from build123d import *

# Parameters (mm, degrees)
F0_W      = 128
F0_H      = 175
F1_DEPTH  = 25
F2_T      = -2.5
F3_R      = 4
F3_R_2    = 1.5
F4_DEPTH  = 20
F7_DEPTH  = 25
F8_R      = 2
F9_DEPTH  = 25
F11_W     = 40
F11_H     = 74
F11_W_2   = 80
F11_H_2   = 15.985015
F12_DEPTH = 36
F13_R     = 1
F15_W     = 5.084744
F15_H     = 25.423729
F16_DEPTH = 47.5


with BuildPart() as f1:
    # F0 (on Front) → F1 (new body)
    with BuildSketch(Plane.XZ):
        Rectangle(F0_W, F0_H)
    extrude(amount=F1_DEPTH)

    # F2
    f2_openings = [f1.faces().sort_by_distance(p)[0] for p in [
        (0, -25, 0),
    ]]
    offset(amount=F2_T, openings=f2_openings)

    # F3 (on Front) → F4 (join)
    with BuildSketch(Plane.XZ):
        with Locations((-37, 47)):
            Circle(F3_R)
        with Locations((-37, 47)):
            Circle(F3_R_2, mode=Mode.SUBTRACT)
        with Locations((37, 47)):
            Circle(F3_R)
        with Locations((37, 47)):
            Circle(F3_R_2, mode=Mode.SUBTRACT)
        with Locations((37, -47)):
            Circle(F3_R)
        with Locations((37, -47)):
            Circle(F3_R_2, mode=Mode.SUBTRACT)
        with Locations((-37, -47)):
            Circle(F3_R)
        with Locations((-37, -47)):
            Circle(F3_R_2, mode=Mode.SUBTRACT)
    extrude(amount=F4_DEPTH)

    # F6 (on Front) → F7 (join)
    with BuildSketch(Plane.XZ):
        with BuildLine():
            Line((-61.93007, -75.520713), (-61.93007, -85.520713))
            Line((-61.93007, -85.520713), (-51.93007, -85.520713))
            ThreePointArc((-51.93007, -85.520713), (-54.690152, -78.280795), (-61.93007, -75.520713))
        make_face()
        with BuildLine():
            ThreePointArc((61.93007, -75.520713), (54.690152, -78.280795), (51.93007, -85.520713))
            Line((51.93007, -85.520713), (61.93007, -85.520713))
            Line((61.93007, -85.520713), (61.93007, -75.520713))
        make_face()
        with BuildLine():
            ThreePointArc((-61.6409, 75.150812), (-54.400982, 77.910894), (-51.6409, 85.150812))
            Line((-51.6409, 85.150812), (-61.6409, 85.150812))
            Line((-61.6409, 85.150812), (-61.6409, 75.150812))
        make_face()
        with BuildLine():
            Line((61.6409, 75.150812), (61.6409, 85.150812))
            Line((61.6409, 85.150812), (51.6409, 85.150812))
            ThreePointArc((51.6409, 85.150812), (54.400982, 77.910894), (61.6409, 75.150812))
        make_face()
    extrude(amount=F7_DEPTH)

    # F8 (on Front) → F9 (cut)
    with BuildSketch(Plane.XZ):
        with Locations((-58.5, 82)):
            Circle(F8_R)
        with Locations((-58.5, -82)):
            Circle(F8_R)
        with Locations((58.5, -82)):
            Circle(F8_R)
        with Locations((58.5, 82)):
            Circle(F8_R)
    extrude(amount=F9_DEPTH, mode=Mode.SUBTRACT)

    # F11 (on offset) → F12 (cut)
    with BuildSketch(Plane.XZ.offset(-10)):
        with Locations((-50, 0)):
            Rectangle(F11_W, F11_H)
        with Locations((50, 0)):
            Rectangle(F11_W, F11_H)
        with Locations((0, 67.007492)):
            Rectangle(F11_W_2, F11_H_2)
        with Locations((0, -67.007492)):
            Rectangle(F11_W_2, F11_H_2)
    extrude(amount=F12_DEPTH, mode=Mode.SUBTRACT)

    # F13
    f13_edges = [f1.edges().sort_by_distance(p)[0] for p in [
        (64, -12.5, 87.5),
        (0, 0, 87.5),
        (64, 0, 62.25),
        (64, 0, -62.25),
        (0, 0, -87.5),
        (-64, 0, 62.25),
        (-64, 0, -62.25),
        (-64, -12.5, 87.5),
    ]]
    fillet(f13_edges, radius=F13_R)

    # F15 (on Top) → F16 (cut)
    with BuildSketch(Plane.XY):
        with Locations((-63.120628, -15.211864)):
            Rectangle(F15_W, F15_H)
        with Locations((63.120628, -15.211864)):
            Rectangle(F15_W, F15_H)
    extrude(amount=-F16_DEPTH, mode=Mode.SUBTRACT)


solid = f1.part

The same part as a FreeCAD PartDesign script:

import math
import FreeCAD as App
import Part
import Sketcher
from FreeCAD import Vector
Q = App.Units.Quantity


def edges_at(feature, points):
    """Names of the edges that pass closest to the given points."""
    edges = feature.Shape.Edges
    near = lambda p: min(range(len(edges)), key=lambda i: edges[i].distToShape(Part.Vertex(*p))[0])
    return sorted({f"Edge{near(p) + 1}" for p in points})


def faces_at(feature, points):
    """Names of the faces that lie closest to the given points."""
    faces = feature.Shape.Faces
    near = lambda p: min(range(len(faces)), key=lambda i: faces[i].distToShape(Part.Vertex(*p))[0])
    return sorted({f"Face{near(p) + 1}" for p in points})


def add_polygon(sketch, points):
    """Adds a closed chain of lines whose ends are joined by coincident constraints."""
    first, n = sketch.GeometryCount, len(points)
    for a, b in zip(points, points[1:] + points[:1]):
        sketch.addGeometry(Part.LineSegment(App.Vector(*a, 0), App.Vector(*b, 0)), False)
    for i in range(n):
        sketch.addConstraint(Sketcher.Constraint("Coincident", first + i, 2, first + (i + 1) % n, 1))

doc = App.newDocument("Part")
params = doc.addObject("Spreadsheet::Sheet", "Params")
for row, (alias, value) in enumerate([
    ("sketch1_width", "128 mm"),
    ("sketch1_height", "175 mm"),
    ("pad1_length", "25 mm"),
    ("thickness_wall", "2.5 mm"),
    ("sketch2_diameter", "8 mm"),
    ("sketch2_diameter2", "3 mm"),
    ("pad2_length", "20 mm"),
    ("sketch3_width", "10 mm"),
    ("pad3_length", "25 mm"),
    ("sketch4_diameter", "4 mm"),
    ("pocket1_length", "25 mm"),
    ("sketch5_width", "40 mm"),
    ("sketch5_width2", "80 mm"),
    ("sketch5_height", "74 mm"),
    ("pocket2_length", "36 mm"),
    ("fillet_radius", "1 mm"),
    ("pocket3_length", "47.5 mm"),
], start=1):
    params.set(f"A{row}", alias)
    params.set(f"B{row}", "=" + value)
    params.setAlias(f"B{row}", alias)

body = doc.addObject("PartDesign::Body", "Body")

sketch1 = body.newObject("Sketcher::SketchObject", "Sketch")
sketch1.AttachmentSupport = (doc.getObject("XZ_Plane"), [""])
sketch1.MapMode = "FlatFace"
add_polygon(sketch1, [(-64, 88), (-64, -88), (64, -88), (64, 88)])
sketch1.addConstraint(Sketcher.Constraint("Vertical", 0))
sketch1.addConstraint(Sketcher.Constraint("Horizontal", 1))
sketch1.addConstraint(Sketcher.Constraint("Vertical", 2))
sketch1.addConstraint(Sketcher.Constraint("Horizontal", 3))
sketch1.addConstraint(Sketcher.Constraint("Symmetric", 0, 2, 2, 2, -1, 1))
sketch1.addConstraint(Sketcher.Constraint("DistanceX", 1, 1, 1, 2, Q("128 mm")))
sketch1.addConstraint(Sketcher.Constraint("DistanceY", 0, 2, 0, 1, Q("175 mm")))
sketch1.setExpression("Constraints[9]", "Params.sketch1_width")
sketch1.setExpression("Constraints[10]", "Params.sketch1_height")
pad1 = body.newObject("PartDesign::Pad", "Pad")
pad1.Profile = sketch1
pad1.setExpression("Length", "Params.pad1_length")
doc.recompute()

thickness = body.newObject("PartDesign::Thickness", "Thickness")
thickness.Base = (pad1, faces_at(pad1, [(0, -25, 0)]))
thickness.setExpression("Value", "Params.thickness_wall")
thickness.Reversed = True
thickness.Join = "Arc"

sketch2 = body.newObject("Sketcher::SketchObject", "Sketch001")
sketch2.AttachmentSupport = (doc.getObject("XZ_Plane"), [""])
sketch2.MapMode = "FlatFace"
sketch2.addGeometry(Part.Circle(Vector(-37, 47, 0), Vector(0, 0, 1), 4), False)
sketch2.addGeometry(Part.Circle(Vector(-37, 47, 0), Vector(0, 0, 1), 1.5), False)
sketch2.addGeometry(Part.Circle(Vector(37, 47, 0), Vector(0, 0, 1), 4), False)
sketch2.addGeometry(Part.Circle(Vector(37, 47, 0), Vector(0, 0, 1), 1.5), False)
sketch2.addGeometry(Part.Circle(Vector(37, -47, 0), Vector(0, 0, 1), 4), False)
sketch2.addGeometry(Part.Circle(Vector(37, -47, 0), Vector(0, 0, 1), 1.5), False)
sketch2.addGeometry(Part.Circle(Vector(-37, -47, 0), Vector(0, 0, 1), 4), False)
sketch2.addGeometry(Part.Circle(Vector(-37, -47, 0), Vector(0, 0, 1), 1.5), False)
sketch2.addConstraint(Sketcher.Constraint("Coincident", 1, 3, 0, 3))
sketch2.addConstraint(Sketcher.Constraint("Coincident", 3, 3, 2, 3))
sketch2.addConstraint(Sketcher.Constraint("Coincident", 5, 3, 4, 3))
sketch2.addConstraint(Sketcher.Constraint("Coincident", 7, 3, 6, 3))
sketch2.addConstraint(Sketcher.Constraint("Equal", 0, 2))
sketch2.addConstraint(Sketcher.Constraint("Equal", 1, 3))
sketch2.addConstraint(Sketcher.Constraint("Equal", 2, 4))
sketch2.addConstraint(Sketcher.Constraint("Equal", 3, 5))
sketch2.addConstraint(Sketcher.Constraint("Equal", 4, 6))
sketch2.addConstraint(Sketcher.Constraint("Equal", 5, 7))
sketch2.addConstraint(Sketcher.Constraint("Symmetric", 0, 3, 4, 3, -1, 1))
sketch2.addConstraint(Sketcher.Constraint("Symmetric", 2, 3, 6, 3, -1, 1))
sketch2.addConstraint(Sketcher.Constraint("Symmetric", 0, 3, 2, 3, -2))
sketch2.addConstraint(Sketcher.Constraint("Diameter", 0, Q("8 mm")))
sketch2.addConstraint(Sketcher.Constraint("Diameter", 1, Q("3 mm")))
sketch2.addConstraint(Sketcher.Constraint("DistanceX", 0, 3, -1, 1, Q("37 mm")))
sketch2.addConstraint(Sketcher.Constraint("DistanceY", -1, 1, 0, 3, Q("47 mm")))
sketch2.setExpression("Constraints[13]", "Params.sketch2_diameter")
sketch2.setExpression("Constraints[14]", "Params.sketch2_diameter2")
pad2 = body.newObject("PartDesign::Pad", "Pad001")
pad2.Profile = sketch2
pad2.setExpression("Length", "Params.pad2_length")

sketch3 = body.newObject("Sketcher::SketchObject", "Sketch002")
sketch3.AttachmentSupport = (doc.getObject("XZ_Plane"), [""])
sketch3.MapMode = "FlatFace"
sketch3.addGeometry(Part.LineSegment(Vector(-62, -76, 0), Vector(-62, -86, 0)), False)
sketch3.addGeometry(Part.LineSegment(Vector(-62, -86, 0), Vector(-52, -86, 0)), False)
sketch3.addGeometry(Part.ArcOfCircle(Part.Circle(Vector(-61, -85, 0), Vector(0, 0, 1), 9), math.radians(-3), math.radians(93)), False)
sketch3.addGeometry(Part.ArcOfCircle(Part.Circle(Vector(61, -85, 0), Vector(0, 0, 1), 9), math.radians(87), math.radians(183)), False)
sketch3.addGeometry(Part.LineSegment(Vector(52, -86, 0), Vector(62, -86, 0)), False)
sketch3.addGeometry(Part.LineSegment(Vector(62, -86, 0), Vector(62, -76, 0)), False)
sketch3.addGeometry(Part.ArcOfCircle(Part.Circle(Vector(-61, 85, 0), Vector(0, 0, 1), 9), math.radians(-93), math.radians(3)), False)
sketch3.addGeometry(Part.LineSegment(Vector(-52, 85, 0), Vector(-62, 85, 0)), False)
sketch3.addGeometry(Part.LineSegment(Vector(-62, 85, 0), Vector(-62, 75, 0)), False)
sketch3.addGeometry(Part.LineSegment(Vector(62, 75, 0), Vector(62, 85, 0)), False)
sketch3.addGeometry(Part.LineSegment(Vector(62, 85, 0), Vector(52, 85, 0)), False)
sketch3.addGeometry(Part.ArcOfCircle(Part.Circle(Vector(61, 85, 0), Vector(0, 0, 1), 9), math.radians(177), math.radians(273)), False)
sketch3.addConstraint(Sketcher.Constraint("Coincident", 0, 2, 1, 1))
sketch3.addConstraint(Sketcher.Constraint("Coincident", 1, 2, 2, 1))
sketch3.addConstraint(Sketcher.Constraint("Coincident", 2, 2, 0, 1))
sketch3.addConstraint(Sketcher.Constraint("Coincident", 3, 2, 4, 1))
sketch3.addConstraint(Sketcher.Constraint("Coincident", 4, 2, 5, 1))
sketch3.addConstraint(Sketcher.Constraint("Coincident", 5, 2, 3, 1))
sketch3.addConstraint(Sketcher.Constraint("Coincident", 6, 2, 7, 1))
sketch3.addConstraint(Sketcher.Constraint("Coincident", 7, 2, 8, 1))
sketch3.addConstraint(Sketcher.Constraint("Coincident", 8, 2, 6, 1))
sketch3.addConstraint(Sketcher.Constraint("Coincident", 9, 2, 10, 1))
sketch3.addConstraint(Sketcher.Constraint("Coincident", 10, 2, 11, 1))
sketch3.addConstraint(Sketcher.Constraint("Coincident", 11, 2, 9, 1))
sketch3.addConstraint(Sketcher.Constraint("Vertical", 0))
sketch3.addConstraint(Sketcher.Constraint("Horizontal", 1))
sketch3.addConstraint(Sketcher.Constraint("Horizontal", 4))
sketch3.addConstraint(Sketcher.Constraint("Vertical", 5))
sketch3.addConstraint(Sketcher.Constraint("Horizontal", 7))
sketch3.addConstraint(Sketcher.Constraint("Vertical", 8))
sketch3.addConstraint(Sketcher.Constraint("Vertical", 9))
sketch3.addConstraint(Sketcher.Constraint("Horizontal", 10))
sketch3.addConstraint(Sketcher.Constraint("Equal", 2, 3))
sketch3.addConstraint(Sketcher.Constraint("Equal", 3, 6))
sketch3.addConstraint(Sketcher.Constraint("Equal", 6, 11))
sketch3.addConstraint(Sketcher.Constraint("Symmetric", 2, 3, 3, 3, -2))
sketch3.addConstraint(Sketcher.Constraint("Symmetric", 6, 3, 11, 3, -2))
sketch3.addConstraint(Sketcher.Constraint("Symmetric", 0, 2, 4, 2, -2))
sketch3.addConstraint(Sketcher.Constraint("Symmetric", 7, 2, 9, 2, -2))
sketch3.addConstraint(Sketcher.Constraint("Equal", 4, 7))
sketch3.addConstraint(Sketcher.Constraint("Equal", 10, 0))
sketch3.addConstraint(Sketcher.Constraint("Equal", 5, 8))
sketch3.addConstraint(Sketcher.Constraint("DistanceX", 1, 1, 1, 2, Q("10 mm")))
sketch3.addConstraint(Sketcher.Constraint("Radius", 2, Q("9.475967 mm")))
sketch3.addConstraint(Sketcher.Constraint("DistanceX", 6, 2, -1, 1, Q("51.6409 mm")))
sketch3.addConstraint(Sketcher.Constraint("DistanceX", 0, 2, -1, 1, Q("61.93007 mm")))
sketch3.addConstraint(Sketcher.Constraint("DistanceY", -1, 1, 7, 2, Q("85.150812 mm")))
sketch3.addConstraint(Sketcher.Constraint("DistanceY", 2, 3, 6, 3, Q("169.59273 mm")))
sketch3.setExpression("Constraints[30]", "Params.sketch3_width")
pad3 = body.newObject("PartDesign::Pad", "Pad002")
pad3.Profile = sketch3
pad3.setExpression("Length", "Params.pad3_length")

sketch4 = body.newObject("Sketcher::SketchObject", "Sketch003")
sketch4.AttachmentSupport = (doc.getObject("XZ_Plane"), [""])
sketch4.MapMode = "FlatFace"
sketch4.addGeometry(Part.Circle(Vector(-58.5, 82, 0), Vector(0, 0, 1), 2), False)
sketch4.addGeometry(Part.Circle(Vector(-58.5, -82, 0), Vector(0, 0, 1), 2), False)
sketch4.addGeometry(Part.Circle(Vector(58.5, -82, 0), Vector(0, 0, 1), 2), False)
sketch4.addGeometry(Part.Circle(Vector(58.5, 82, 0), Vector(0, 0, 1), 2), False)
sketch4.addConstraint(Sketcher.Constraint("Equal", 0, 1))
sketch4.addConstraint(Sketcher.Constraint("Equal", 1, 2))
sketch4.addConstraint(Sketcher.Constraint("Equal", 2, 3))
sketch4.addConstraint(Sketcher.Constraint("Symmetric", 0, 3, 2, 3, -1, 1))
sketch4.addConstraint(Sketcher.Constraint("Symmetric", 1, 3, 3, 3, -1, 1))
sketch4.addConstraint(Sketcher.Constraint("Symmetric", 1, 3, 2, 3, -2))
sketch4.addConstraint(Sketcher.Constraint("Diameter", 0, Q("4 mm")))
sketch4.addConstraint(Sketcher.Constraint("DistanceY", -1, 1, 0, 3, Q("82 mm")))
sketch4.addConstraint(Sketcher.Constraint("DistanceX", 1, 3, 2, 3, Q("117 mm")))
sketch4.setExpression("Constraints[6]", "Params.sketch4_diameter")
pocket1 = body.newObject("PartDesign::Pocket", "Pocket")
pocket1.Profile = sketch4
pocket1.setExpression("Length", "Params.pocket1_length")
pocket1.Reversed = True

sketch5 = body.newObject("Sketcher::SketchObject", "Sketch004")
sketch5.AttachmentSupport = (doc.getObject("XZ_Plane"), [""])
sketch5.MapMode = "FlatFace"
sketch5.AttachmentOffset = App.Placement(Vector(0, 0, -10), App.Rotation())
add_polygon(sketch5, [(-70, 37), (-70, -37), (-30, -37), (-30, 37)])
add_polygon(sketch5, [(30, 37), (30, -37), (70, -37), (70, 37)])
add_polygon(sketch5, [(-40, 75), (-40, 59), (40, 59), (40, 75)])
add_polygon(sketch5, [(-40, -59), (-40, -75), (40, -75), (40, -59)])
sketch5.addConstraint(Sketcher.Constraint("Vertical", 0))
sketch5.addConstraint(Sketcher.Constraint("Horizontal", 1))
sketch5.addConstraint(Sketcher.Constraint("Vertical", 2))
sketch5.addConstraint(Sketcher.Constraint("Horizontal", 3))
sketch5.addConstraint(Sketcher.Constraint("Vertical", 4))
sketch5.addConstraint(Sketcher.Constraint("Horizontal", 5))
sketch5.addConstraint(Sketcher.Constraint("Vertical", 6))
sketch5.addConstraint(Sketcher.Constraint("Horizontal", 7))
sketch5.addConstraint(Sketcher.Constraint("Vertical", 8))
sketch5.addConstraint(Sketcher.Constraint("Horizontal", 9))
sketch5.addConstraint(Sketcher.Constraint("Vertical", 10))
sketch5.addConstraint(Sketcher.Constraint("Horizontal", 11))
sketch5.addConstraint(Sketcher.Constraint("Vertical", 12))
sketch5.addConstraint(Sketcher.Constraint("Horizontal", 13))
sketch5.addConstraint(Sketcher.Constraint("Vertical", 14))
sketch5.addConstraint(Sketcher.Constraint("Horizontal", 15))
sketch5.addConstraint(Sketcher.Constraint("Symmetric", 2, 2, 4, 2, -1, 1))
sketch5.addConstraint(Sketcher.Constraint("Symmetric", 0, 2, 6, 2, -1, 1))
sketch5.addConstraint(Sketcher.Constraint("Symmetric", 10, 2, 12, 2, -1, 1))
sketch5.addConstraint(Sketcher.Constraint("Symmetric", 8, 2, 14, 2, -1, 1))
sketch5.addConstraint(Sketcher.Constraint("Horizontal", 1, 2, 4, 2))
sketch5.addConstraint(Sketcher.Constraint("Vertical", 11, 2, 12, 2))
sketch5.addConstraint(Sketcher.Constraint("DistanceX", 1, 1, 1, 2, Q("40 mm")))
sketch5.addConstraint(Sketcher.Constraint("DistanceX", 9, 1, 9, 2, Q("80 mm")))
sketch5.addConstraint(Sketcher.Constraint("DistanceY", 0, 2, 0, 1, Q("74 mm")))
sketch5.addConstraint(Sketcher.Constraint("DistanceX", 0, 2, -1, 1, Q("70 mm")))
sketch5.addConstraint(Sketcher.Constraint("DistanceY", -1, 1, 10, 2, Q("75 mm")))
sketch5.addConstraint(Sketcher.Constraint("DistanceY", 8, 2, 8, 1, Q("15.985015 mm")))
sketch5.setExpression("Constraints[38]", "Params.sketch5_width")
sketch5.setExpression("Constraints[39]", "Params.sketch5_width2")
sketch5.setExpression("Constraints[40]", "Params.sketch5_height")
pocket2 = body.newObject("PartDesign::Pocket", "Pocket001")
pocket2.Profile = sketch5
pocket2.setExpression("Length", "Params.pocket2_length")
pocket2.Reversed = True
doc.recompute()

fillet = body.newObject("PartDesign::Fillet", "Fillet")
fillet.Base = (pocket2, edges_at(pocket2, [
    (64, -12.5, 87.5),
    (0, 0, 87.5),
    (64, 0, 62.25),
    (64, 0, -62.25),
    (0, 0, -87.5),
    (-64, 0, 62.25),
    (-64, 0, -62.25),
    (-64, -12.5, 87.5),
]))
fillet.setExpression("Radius", "Params.fillet_radius")

sketch6 = body.newObject("Sketcher::SketchObject", "Sketch005")
sketch6.AttachmentSupport = (doc.getObject("XY_Plane"), [""])
sketch6.MapMode = "FlatFace"
add_polygon(sketch6, [(-66, -2), (-66, -28), (-61, -28), (-61, -2)])
add_polygon(sketch6, [(61, -2), (61, -28), (66, -28), (66, -2)])
sketch6.addConstraint(Sketcher.Constraint("Vertical", 0))
sketch6.addConstraint(Sketcher.Constraint("Horizontal", 1))
sketch6.addConstraint(Sketcher.Constraint("Vertical", 2))
sketch6.addConstraint(Sketcher.Constraint("Horizontal", 3))
sketch6.addConstraint(Sketcher.Constraint("Vertical", 4))
sketch6.addConstraint(Sketcher.Constraint("Horizontal", 5))
sketch6.addConstraint(Sketcher.Constraint("Vertical", 6))
sketch6.addConstraint(Sketcher.Constraint("Horizontal", 7))
sketch6.addConstraint(Sketcher.Constraint("Symmetric", 1, 2, 4, 2, -2))
sketch6.addConstraint(Sketcher.Constraint("Symmetric", 3, 2, 6, 2, -2))
sketch6.addConstraint(Sketcher.Constraint("DistanceY", 2, 2, -1, 1, Q("2.499999 mm")))
sketch6.addConstraint(Sketcher.Constraint("DistanceX", 0, 2, -1, 1, Q("65.663 mm")))
sketch6.addConstraint(Sketcher.Constraint("DistanceY", 0, 2, 0, 1, Q("25.423729 mm")))
sketch6.addConstraint(Sketcher.Constraint("DistanceX", 1, 1, 1, 2, Q("5.084744 mm")))
pocket3 = body.newObject("PartDesign::Pocket", "Pocket002")
pocket3.Profile = sketch6
pocket3.setExpression("Length", "Params.pocket3_length")

doc.recompute()
